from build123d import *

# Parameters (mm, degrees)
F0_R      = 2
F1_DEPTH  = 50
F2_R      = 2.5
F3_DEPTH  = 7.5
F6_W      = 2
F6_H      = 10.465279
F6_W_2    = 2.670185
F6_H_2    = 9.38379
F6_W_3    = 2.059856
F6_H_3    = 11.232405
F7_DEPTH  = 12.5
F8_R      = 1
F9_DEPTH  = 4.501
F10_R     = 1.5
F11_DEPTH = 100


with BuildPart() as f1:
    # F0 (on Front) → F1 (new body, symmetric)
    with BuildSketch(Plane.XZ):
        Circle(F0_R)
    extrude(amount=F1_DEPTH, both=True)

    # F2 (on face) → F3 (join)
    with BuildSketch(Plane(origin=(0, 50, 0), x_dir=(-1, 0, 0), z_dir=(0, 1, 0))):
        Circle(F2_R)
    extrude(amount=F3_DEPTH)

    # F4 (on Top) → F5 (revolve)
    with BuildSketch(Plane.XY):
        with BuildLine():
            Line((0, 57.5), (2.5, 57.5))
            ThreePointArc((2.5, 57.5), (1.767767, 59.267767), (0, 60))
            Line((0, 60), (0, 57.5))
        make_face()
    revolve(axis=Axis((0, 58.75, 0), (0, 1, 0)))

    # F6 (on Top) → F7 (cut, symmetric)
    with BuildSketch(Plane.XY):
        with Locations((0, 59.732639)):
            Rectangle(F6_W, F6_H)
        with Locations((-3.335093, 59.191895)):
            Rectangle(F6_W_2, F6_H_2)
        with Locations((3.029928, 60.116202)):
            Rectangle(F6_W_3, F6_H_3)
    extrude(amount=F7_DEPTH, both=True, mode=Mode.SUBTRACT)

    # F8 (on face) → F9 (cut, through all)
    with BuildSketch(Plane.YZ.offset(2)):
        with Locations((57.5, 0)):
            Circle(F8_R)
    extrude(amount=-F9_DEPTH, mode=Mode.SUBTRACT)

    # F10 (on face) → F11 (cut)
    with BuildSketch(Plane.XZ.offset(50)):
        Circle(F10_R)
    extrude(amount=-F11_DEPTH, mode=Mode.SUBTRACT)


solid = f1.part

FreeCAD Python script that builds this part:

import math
import FreeCAD as App
import Part
import Sketcher

doc = App.newDocument("Part")
body = doc.addObject("PartDesign::Body", "Body")

# Sketch on XZ plane
sketch1 = body.newObject("Sketcher::SketchObject", "Sketch")
sketch1.AttachmentSupport = (doc.getObject("XZ_Plane"), [""])
sketch1.MapMode = "FlatFace"
sketch1.addGeometry(Part.Circle(App.Vector(0, 0, 0), App.Vector(0, 0, 1), 2), False)
sketch1.addConstraint([
    Sketcher.Constraint("Coincident", 0, 3, -1, 1),
    Sketcher.Constraint("Diameter", 0, 4.0),
])
pad1 = body.newObject("PartDesign::Pad", "Pad")
pad1.Profile = sketch1
pad1.Length = 100
pad1.Midplane = True

# Sketch on XZ plane
sketch2 = body.newObject("Sketcher::SketchObject", "Sketch001")
sketch2.AttachmentSupport = (doc.getObject("XZ_Plane"), [""])
sketch2.MapMode = "FlatFace"
sketch2.AttachmentOffset = App.Placement(App.Vector(0, 0, -50), App.Rotation())
sketch2.addGeometry(Part.Circle(App.Vector(0, 0, 0), App.Vector(0, 0, 1), 2.5), False)
sketch2.addConstraint([
    Sketcher.Constraint("Coincident", 0, 3, -1, 1),
    Sketcher.Constraint("Diameter", 0, 5.0),
])
pad2 = body.newObject("PartDesign::Pad", "Pad001")
pad2.Profile = sketch2
pad2.Length = 7.5
pad2.Reversed = True

# Sketch on XY plane
sketch3 = body.newObject("Sketcher::SketchObject", "Sketch002")
sketch3.AttachmentSupport = (doc.getObject("XY_Plane"), [""])
sketch3.MapMode = "FlatFace"
sketch3.addGeometry([
    Part.LineSegment(App.Vector(0, 57.5, 0), App.Vector(2.5, 57.5, 0)),
    Part.ArcOfCircle(Part.Circle(App.Vector(0, 57.5, 0), App.Vector(0, 0, 1), 2.5), math.radians(0), math.radians(90)),
    Part.LineSegment(App.Vector(0, 60, 0), App.Vector(0, 57.5, 0)),
], False)
sketch3.addConstraint([
    Sketcher.Constraint("Coincident", 0, 2, 1, 1),
    Sketcher.Constraint("Coincident", 1, 2, 2, 1),
    Sketcher.Constraint("Coincident", 2, 2, 0, 1),
    Sketcher.Constraint("Horizontal", 0),
    Sketcher.Constraint("Vertical", 2),
    Sketcher.Constraint("Coincident", 2, 2, 1, 3),
    Sketcher.Constraint("PointOnObject", 1, 3, -2),
    Sketcher.Constraint("Radius", 1, 2.5),
    Sketcher.Constraint("DistanceY", -1, 1, 1, 2, 60.0),
])
revolution = body.newObject("PartDesign::Revolution", "Revolution")
revolution.Profile = sketch3
revolution.ReferenceAxis = (sketch3, ["V_Axis"])
revolution.Angle = 360

# Sketch on XY plane
sketch4 = body.newObject("Sketcher::SketchObject", "Sketch003")
sketch4.AttachmentSupport = (doc.getObject("XY_Plane"), [""])
sketch4.MapMode = "FlatFace"
sketch4.addGeometry([
    Part.LineSegment(App.Vector(-1, 65, 0), App.Vector(-1, 54.5, 0)),  # 0
    Part.LineSegment(App.Vector(-1, 54.5, 0), App.Vector(1, 54.5, 0)),  # 1
    Part.LineSegment(App.Vector(1, 54.5, 0), App.Vector(1, 65, 0)),  # 2
    Part.LineSegment(App.Vector(1, 65, 0), App.Vector(-1, 65, 0)),  # 3
    Part.LineSegment(App.Vector(-4.7, 63.9, 0), App.Vector(-4.7, 54.5, 0)),  # 4
    Part.LineSegment(App.Vector(-4.7, 54.5, 0), App.Vector(-2, 54.5, 0)),  # 5
    Part.LineSegment(App.Vector(-2, 54.5, 0), App.Vector(-2, 63.9, 0)),  # 6
    Part.LineSegment(App.Vector(-2, 63.9, 0), App.Vector(-4.7, 63.9, 0)),  # 7
    Part.LineSegment(App.Vector(2, 65.7, 0), App.Vector(2, 54.5, 0)),  # 8
    Part.LineSegment(App.Vector(2, 54.5, 0), App.Vector(4.1, 54.5, 0)),  # 9
    Part.LineSegment(App.Vector(4.1, 54.5, 0), App.Vector(4.1, 65.7, 0)),  # 10
    Part.LineSegment(App.Vector(4.1, 65.7, 0), App.Vector(2, 65.7, 0)),  # 11
], False)
sketch4.addConstraint([
    Sketcher.Constraint("Coincident", 0, 2, 1, 1),
    Sketcher.Constraint("Coincident", 1, 2, 2, 1),
    Sketcher.Constraint("Coincident", 2, 2, 3, 1),
    Sketcher.Constraint("Coincident", 3, 2, 0, 1),
    Sketcher.Constraint("Coincident", 4, 2, 5, 1),
    Sketcher.Constraint("Coincident", 5, 2, 6, 1),
    Sketcher.Constraint("Coincident", 6, 2, 7, 1),
    Sketcher.Constraint("Coincident", 7, 2, 4, 1),
    Sketcher.Constraint("Coincident", 8, 2, 9, 1),
    Sketcher.Constraint("Coincident", 9, 2, 10, 1),
    Sketcher.Constraint("Coincident", 10, 2, 11, 1),
    Sketcher.Constraint("Coincident", 11, 2, 8, 1),
    Sketcher.Constraint("Vertical", 0),
    Sketcher.Constraint("Horizontal", 1),
    Sketcher.Constraint("Vertical", 2),
    Sketcher.Constraint("Horizontal", 3),
    Sketcher.Constraint("Vertical", 4),
    Sketcher.Constraint("Horizontal", 5),
    Sketcher.Constraint("Vertical", 6),
    Sketcher.Constraint("Horizontal", 7),
    Sketcher.Constraint("Vertical", 8),
    Sketcher.Constraint("Horizontal", 9),
    Sketcher.Constraint("Vertical", 10),
    Sketcher.Constraint("Horizontal", 11),
    Sketcher.Constraint("Symmetric", 5, 2, 8, 2, -2),
    Sketcher.Constraint("Horizontal", 1, 2, 4, 2),
    Sketcher.Constraint("DistanceX", 1, 1, 1, 2, 2.0),
    Sketcher.Constraint("DistanceX", 0, 2, -1, 1, 1.0),
    Sketcher.Constraint("DistanceX", 5, 2, -1, 1, 2.000001),
    Sketcher.Constraint("DistanceY", -1, 1, 0, 2, 54.5),
    Sketcher.Constraint("DistanceY", 0, 2, 0, 1, 10.465279),
    Sketcher.Constraint("DistanceY", 4, 2, 4, 1, 9.38379),
    Sketcher.Constraint("DistanceX", 5, 1, 5, 2, 2.670185),
    Sketcher.Constraint("DistanceX", 9, 1, 9, 2, 2.059856),
    Sketcher.Constraint("DistanceY", 8, 2, 8, 1, 11.232405),
])
pocket1 = body.newObject("PartDesign::Pocket", "Pocket")
pocket1.Profile = sketch4
pocket1.Length = 25
pocket1.Midplane = True

# Sketch on YZ plane
sketch5 = body.newObject("Sketcher::SketchObject", "Sketch004")
sketch5.AttachmentSupport = (doc.getObject("YZ_Plane"), [""])
sketch5.MapMode = "FlatFace"
sketch5.AttachmentOffset = App.Placement(App.Vector(0, 0, 2), App.Rotation())
sketch5.addGeometry(Part.Circle(App.Vector(57.5, 0, 0), App.Vector(0, 0, 1), 1), False)
sketch5.addConstraint([
    Sketcher.Constraint("PointOnObject", 0, 3, -1),
    Sketcher.Constraint("Diameter", 0, 2.0),
    Sketcher.Constraint("DistanceX", -1, 1, 0, 3, 57.5),
])
pocket2 = body.newObject("PartDesign::Pocket", "Pocket001")
pocket2.Profile = sketch5
pocket2.Type = "ThroughAll"

# Sketch on XZ plane
sketch6 = body.newObject("Sketcher::SketchObject", "Sketch005")
sketch6.AttachmentSupport = (doc.getObject("XZ_Plane"), [""])
sketch6.MapMode = "FlatFace"
sketch6.AttachmentOffset = App.Placement(App.Vector(0, 0, 50), App.Rotation())
sketch6.addGeometry(Part.Circle(App.Vector(0, 0, 0), App.Vector(0, 0, 1), 1.5), False)
sketch6.addConstraint([
    Sketcher.Constraint("Coincident", 0, 3, -1, 1),
    Sketcher.Constraint("Diameter", 0, 3.0),
])
pocket3 = body.newObject("PartDesign::Pocket", "Pocket002")
pocket3.Profile = sketch6
pocket3.Length = 100

doc.recompute()
